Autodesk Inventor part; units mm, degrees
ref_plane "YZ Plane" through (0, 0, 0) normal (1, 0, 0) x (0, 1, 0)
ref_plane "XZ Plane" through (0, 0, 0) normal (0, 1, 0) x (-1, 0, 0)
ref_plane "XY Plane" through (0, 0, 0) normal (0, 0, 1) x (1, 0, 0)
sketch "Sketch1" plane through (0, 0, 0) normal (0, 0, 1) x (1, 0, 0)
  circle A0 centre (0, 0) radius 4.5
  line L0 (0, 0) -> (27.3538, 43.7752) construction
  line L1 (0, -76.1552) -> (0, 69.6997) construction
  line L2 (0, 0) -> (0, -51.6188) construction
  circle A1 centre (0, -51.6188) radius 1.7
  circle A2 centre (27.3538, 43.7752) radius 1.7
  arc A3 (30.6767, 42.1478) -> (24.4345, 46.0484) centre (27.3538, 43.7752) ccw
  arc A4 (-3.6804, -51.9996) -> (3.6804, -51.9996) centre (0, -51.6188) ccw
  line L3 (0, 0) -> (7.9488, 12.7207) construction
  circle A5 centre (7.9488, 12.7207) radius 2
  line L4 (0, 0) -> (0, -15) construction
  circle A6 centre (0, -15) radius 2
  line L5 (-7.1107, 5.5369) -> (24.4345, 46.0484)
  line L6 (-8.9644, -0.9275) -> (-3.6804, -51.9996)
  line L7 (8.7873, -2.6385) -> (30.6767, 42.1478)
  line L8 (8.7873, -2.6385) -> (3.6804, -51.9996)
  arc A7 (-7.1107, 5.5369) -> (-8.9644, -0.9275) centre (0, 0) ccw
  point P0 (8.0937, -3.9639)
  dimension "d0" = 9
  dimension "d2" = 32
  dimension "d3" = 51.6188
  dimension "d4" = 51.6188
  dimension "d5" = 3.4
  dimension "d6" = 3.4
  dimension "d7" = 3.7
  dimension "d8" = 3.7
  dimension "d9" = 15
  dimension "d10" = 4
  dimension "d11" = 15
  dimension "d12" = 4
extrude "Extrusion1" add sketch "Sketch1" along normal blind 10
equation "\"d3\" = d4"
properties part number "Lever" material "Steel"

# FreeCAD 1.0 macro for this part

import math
import FreeCAD as App
import Part
import Sketcher
from FreeCAD import Vector
Q = App.Units.Quantity

doc = App.newDocument("Part")
body = doc.addObject("PartDesign::Body", "Body")

sketch1 = doc.addObject("Sketcher::SketchObject", "Sketch")
body.addObject(sketch1)
sketch1.AttachmentSupport = (doc.XY_Plane, [""])
sketch1.MapMode = "FlatFace"
sketch1.addGeometry([
    Part.LineSegment(Vector(8.8, -2.6, 0), Vector(30.7, 42.1, 0)),
    Part.ArcOfCircle(Part.Circle(Vector(27.4, 43.8, 0), Vector(0, 0, 1), 3.7), math.radians(-26), math.radians(142)),
    Part.LineSegment(Vector(24.4, 46, 0), Vector(-7.1, 5.5, 0)),
    Part.ArcOfCircle(Part.Circle(Vector(0, 0, 0), Vector(0, 0, 1), 9), math.radians(142), math.radians(186)),
    Part.LineSegment(Vector(-9, -0.9, 0), Vector(-3.7, -52, 0)),
    Part.ArcOfCircle(Part.Circle(Vector(0, -51.6, 0), Vector(0, 0, 1), 3.7), math.radians(-174), math.radians(-6)),
    Part.LineSegment(Vector(3.7, -52, 0), Vector(8.8, -2.6, 0)),
    Part.Circle(Vector(0, -51.6, 0), Vector(0, 0, 1), 1.7),
    Part.Circle(Vector(0, -15, 0), Vector(0, 0, 1), 2),
    Part.Circle(Vector(0, 0, 0), Vector(0, 0, 1), 4.5),
    Part.Circle(Vector(7.9, 12.7, 0), Vector(0, 0, 1), 2),
    Part.Circle(Vector(27.4, 43.8, 0), Vector(0, 0, 1), 1.7),
], False)
sketch1.addConstraint([
    Sketcher.Constraint("Coincident", 0, 2, 1, 1),
    Sketcher.Constraint("Tangent", 1, 2, 2, 1),
    Sketcher.Constraint("Tangent", 2, 2, 3, 1),
    Sketcher.Constraint("Tangent", 3, 2, 4, 1),
    Sketcher.Constraint("Tangent", 4, 2, 5, 1),
    Sketcher.Constraint("Tangent", 5, 2, 6, 1),
    Sketcher.Constraint("Coincident", 6, 2, 0, 1),
    Sketcher.Constraint("Coincident", 3, 3, -1, 1),
    Sketcher.Constraint("Coincident", 9, 3, -1, 1),
    Sketcher.Constraint("Coincident", 7, 3, 5, 3),
    Sketcher.Constraint("Coincident", 11, 3, 1, 3),
    Sketcher.Constraint("Equal", 1, 5),
    Sketcher.Constraint("Equal", 8, 10),
    Sketcher.Constraint("Equal", 7, 11),
    Sketcher.Constraint("Symmetric", 4, 2, 5, 2, -2),
    Sketcher.Constraint("PointOnObject", 8, 3, -2),
    Sketcher.Constraint("Equal", 2, 4),
    Sketcher.Constraint("Diameter", 8, Q("4 mm")),
    Sketcher.Constraint("Diameter", 9, Q("9 mm")),
    Sketcher.Constraint("Diameter", 7, Q("3.4 mm")),
    Sketcher.Constraint("Radius", 1, Q("3.7 mm")),
    Sketcher.Constraint("DistanceY", 8, 3, -1, 1, Q("15 mm")),
    Sketcher.Constraint("DistanceY", 5, 3, -1, 1, Q("51.6188 mm")),
    Sketcher.Constraint("Radius", 3, Q("9.0122 mm")),
    Sketcher.Constraint("DistanceY", -1, 1, 2, 2, Q("5.537 mm")),
    Sketcher.Constraint("DistanceX", 10, 3, 1, 3, Q("19.405 mm")),
    Sketcher.Constraint("DistanceX", 1, 3, 0, 2, Q("3.323 mm")),
    Sketcher.Constraint("DistanceY", 10, 3, 0, 2, Q("29.427 mm")),
    Sketcher.Constraint("DistanceY", 6, 2, 3, 2, Q("1.711 mm")),
])
pad1 = doc.addObject("PartDesign::Pad", "Pad")
body.addObject(pad1)
pad1.Profile = sketch1
pad1.Length = 10

doc.recompute()
